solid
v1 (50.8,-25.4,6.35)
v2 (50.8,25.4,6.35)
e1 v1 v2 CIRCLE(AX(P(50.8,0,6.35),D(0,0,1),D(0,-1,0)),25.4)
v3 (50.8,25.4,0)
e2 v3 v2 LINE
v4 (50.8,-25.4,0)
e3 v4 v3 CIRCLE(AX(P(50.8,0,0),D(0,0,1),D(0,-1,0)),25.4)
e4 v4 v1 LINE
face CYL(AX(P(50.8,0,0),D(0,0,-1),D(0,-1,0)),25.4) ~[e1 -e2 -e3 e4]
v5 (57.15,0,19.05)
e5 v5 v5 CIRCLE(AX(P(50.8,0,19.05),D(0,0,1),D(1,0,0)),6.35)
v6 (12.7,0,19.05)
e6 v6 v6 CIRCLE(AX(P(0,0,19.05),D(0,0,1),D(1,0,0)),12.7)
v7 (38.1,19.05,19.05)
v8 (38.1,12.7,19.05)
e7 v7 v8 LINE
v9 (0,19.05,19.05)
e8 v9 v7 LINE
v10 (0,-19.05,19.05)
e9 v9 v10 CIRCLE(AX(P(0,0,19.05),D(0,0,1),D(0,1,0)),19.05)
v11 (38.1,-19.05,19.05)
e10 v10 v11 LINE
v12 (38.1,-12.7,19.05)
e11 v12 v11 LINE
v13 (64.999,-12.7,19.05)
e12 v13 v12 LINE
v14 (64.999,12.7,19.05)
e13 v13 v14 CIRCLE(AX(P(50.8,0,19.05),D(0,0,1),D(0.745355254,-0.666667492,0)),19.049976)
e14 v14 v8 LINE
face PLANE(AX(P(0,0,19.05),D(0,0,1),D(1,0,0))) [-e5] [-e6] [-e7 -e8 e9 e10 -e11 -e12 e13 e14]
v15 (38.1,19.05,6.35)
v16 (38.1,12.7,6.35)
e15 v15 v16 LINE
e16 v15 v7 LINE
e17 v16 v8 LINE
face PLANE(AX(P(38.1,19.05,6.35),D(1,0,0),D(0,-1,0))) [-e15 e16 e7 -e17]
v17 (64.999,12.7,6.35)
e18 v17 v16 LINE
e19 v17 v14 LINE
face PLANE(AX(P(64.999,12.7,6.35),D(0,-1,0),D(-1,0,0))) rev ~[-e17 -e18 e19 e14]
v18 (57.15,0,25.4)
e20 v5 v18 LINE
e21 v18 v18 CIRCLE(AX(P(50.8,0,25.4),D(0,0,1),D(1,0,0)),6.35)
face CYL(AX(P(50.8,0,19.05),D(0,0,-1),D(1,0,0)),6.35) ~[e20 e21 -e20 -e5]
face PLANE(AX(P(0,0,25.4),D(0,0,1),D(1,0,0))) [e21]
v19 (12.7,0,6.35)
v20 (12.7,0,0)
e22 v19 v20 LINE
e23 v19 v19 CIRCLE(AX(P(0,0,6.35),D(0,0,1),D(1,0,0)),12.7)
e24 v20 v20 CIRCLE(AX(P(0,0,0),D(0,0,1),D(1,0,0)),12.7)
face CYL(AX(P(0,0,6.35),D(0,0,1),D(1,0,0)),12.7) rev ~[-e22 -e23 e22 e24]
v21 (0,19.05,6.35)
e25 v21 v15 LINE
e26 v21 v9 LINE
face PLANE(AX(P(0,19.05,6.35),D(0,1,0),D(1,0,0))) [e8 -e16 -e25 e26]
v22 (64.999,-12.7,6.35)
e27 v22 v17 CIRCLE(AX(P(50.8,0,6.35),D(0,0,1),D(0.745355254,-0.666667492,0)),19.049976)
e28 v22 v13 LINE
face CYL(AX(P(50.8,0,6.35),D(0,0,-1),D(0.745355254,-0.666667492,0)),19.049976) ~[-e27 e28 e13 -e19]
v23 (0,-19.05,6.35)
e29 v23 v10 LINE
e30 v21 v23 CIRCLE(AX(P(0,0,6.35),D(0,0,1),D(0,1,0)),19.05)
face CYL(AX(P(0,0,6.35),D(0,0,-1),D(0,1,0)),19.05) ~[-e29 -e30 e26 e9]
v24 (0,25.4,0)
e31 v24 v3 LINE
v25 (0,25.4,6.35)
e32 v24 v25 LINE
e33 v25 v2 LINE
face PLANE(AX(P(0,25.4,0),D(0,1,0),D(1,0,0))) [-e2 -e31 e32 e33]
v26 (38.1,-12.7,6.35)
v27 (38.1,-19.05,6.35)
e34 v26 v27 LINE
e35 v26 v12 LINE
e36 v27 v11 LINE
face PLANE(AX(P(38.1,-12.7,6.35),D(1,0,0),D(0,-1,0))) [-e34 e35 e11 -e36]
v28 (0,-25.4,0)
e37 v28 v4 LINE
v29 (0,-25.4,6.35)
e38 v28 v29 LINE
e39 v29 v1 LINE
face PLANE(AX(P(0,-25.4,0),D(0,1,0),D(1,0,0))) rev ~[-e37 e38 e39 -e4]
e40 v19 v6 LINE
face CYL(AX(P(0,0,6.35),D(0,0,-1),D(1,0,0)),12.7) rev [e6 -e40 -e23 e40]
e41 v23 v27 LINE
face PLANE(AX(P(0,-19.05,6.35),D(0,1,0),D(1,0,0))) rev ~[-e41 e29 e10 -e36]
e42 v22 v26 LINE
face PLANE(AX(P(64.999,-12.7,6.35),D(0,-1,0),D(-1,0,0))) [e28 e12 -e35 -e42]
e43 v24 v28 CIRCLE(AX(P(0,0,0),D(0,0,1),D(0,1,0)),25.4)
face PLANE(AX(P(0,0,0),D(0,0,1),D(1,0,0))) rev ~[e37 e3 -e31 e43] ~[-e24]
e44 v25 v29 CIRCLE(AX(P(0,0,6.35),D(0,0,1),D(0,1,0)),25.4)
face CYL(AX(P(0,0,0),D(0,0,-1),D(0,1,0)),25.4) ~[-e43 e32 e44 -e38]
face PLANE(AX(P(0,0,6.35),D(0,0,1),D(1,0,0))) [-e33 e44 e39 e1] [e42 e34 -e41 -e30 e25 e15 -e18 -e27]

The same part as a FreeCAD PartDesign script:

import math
import FreeCAD as App
import Part
import Sketcher
from FreeCAD import Vector
Q = App.Units.Quantity

doc = App.newDocument("Part")
body = doc.addObject("PartDesign::Body", "Body")

# Sketch on XY plane
sketch1 = body.newObject("Sketcher::SketchObject", "Sketch")
sketch1.AttachmentSupport = (doc.getObject("XY_Plane"), [""])
sketch1.MapMode = "FlatFace"
sketch1.addGeometry(Part.LineSegment(Vector(51, 25, 0), Vector(0, 25, 0)), False)
sketch1.addGeometry(Part.ArcOfCircle(Part.Circle(Vector(0, 0, 0), Vector(0, 0, 1), 25), math.radians(90), math.radians(270)), False)
sketch1.addGeometry(Part.LineSegment(Vector(0, -25, 0), Vector(51, -25, 0)), False)
sketch1.addGeometry(Part.ArcOfCircle(Part.Circle(Vector(51, 0, 0), Vector(0, 0, 1), 25), math.radians(-90), math.radians(90)), False)
sketch1.addConstraint(Sketcher.Constraint("Tangent", 0, 2, 1, 1))
sketch1.addConstraint(Sketcher.Constraint("Tangent", 1, 2, 2, 1))
sketch1.addConstraint(Sketcher.Constraint("Tangent", 2, 2, 3, 1))
sketch1.addConstraint(Sketcher.Constraint("Tangent", 3, 2, 0, 1))
sketch1.addConstraint(Sketcher.Constraint("Horizontal", 0))
sketch1.addConstraint(Sketcher.Constraint("Horizontal", 2))
sketch1.addConstraint(Sketcher.Constraint("Coincident", 1, 3, -1, 1))
sketch1.addConstraint(Sketcher.Constraint("Radius", 1, Q("1 in")))
sketch1.addConstraint(Sketcher.Constraint("DistanceX", 0, 2, 0, 1, Q("2 in")))
pad1 = body.newObject("PartDesign::Pad", "Pad")
pad1.Profile = sketch1
pad1.Length = Q("0.25 in")

# Sketch on XY plane
sketch2 = body.newObject("Sketcher::SketchObject", "Sketch001")
sketch2.AttachmentSupport = (doc.getObject("XY_Plane"), [""])
sketch2.MapMode = "FlatFace"
sketch2.AttachmentOffset = App.Placement(Vector(0, 0, 0.25 * 25.4), App.Rotation())
sketch2.addGeometry(Part.LineSegment(Vector(38, 19, 0), Vector(0, 19, 0)), False)
sketch2.addGeometry(Part.ArcOfCircle(Part.Circle(Vector(0, 0, 0), Vector(0, 0, 1), 19), math.radians(90), math.radians(270)), False)
sketch2.addGeometry(Part.LineSegment(Vector(0, -19, 0), Vector(38, -19, 0)), False)
sketch2.addGeometry(Part.LineSegment(Vector(38, -19, 0), Vector(38, -13, 0)), False)
sketch2.addGeometry(Part.LineSegment(Vector(38, -13, 0), Vector(65, -13, 0)), False)
sketch2.addGeometry(Part.ArcOfCircle(Part.Circle(Vector(51, 0, 0), Vector(0, 0, 1), 19), math.radians(-42), math.radians(42)), False)
sketch2.addGeometry(Part.LineSegment(Vector(65, 13, 0), Vector(38, 13, 0)), False)
sketch2.addGeometry(Part.LineSegment(Vector(38, 13, 0), Vector(38, 19, 0)), False)
sketch2.addGeometry(Part.Circle(Vector(0, 0, 0), Vector(0, 0, 1), 13), False)
sketch2.addConstraint(Sketcher.Constraint("Tangent", 0, 2, 1, 1))
sketch2.addConstraint(Sketcher.Constraint("Tangent", 1, 2, 2, 1))
sketch2.addConstraint(Sketcher.Constraint("Coincident", 2, 2, 3, 1))
sketch2.addConstraint(Sketcher.Constraint("Coincident", 3, 2, 4, 1))
sketch2.addConstraint(Sketcher.Constraint("Coincident", 4, 2, 5, 1))
sketch2.addConstraint(Sketcher.Constraint("Coincident", 5, 2, 6, 1))
sketch2.addConstraint(Sketcher.Constraint("Coincident", 6, 2, 7, 1))
sketch2.addConstraint(Sketcher.Constraint("Coincident", 7, 2, 0, 1))
sketch2.addConstraint(Sketcher.Constraint("Horizontal", 0))
sketch2.addConstraint(Sketcher.Constraint("Horizontal", 2))
sketch2.addConstraint(Sketcher.Constraint("Vertical", 3))
sketch2.addConstraint(Sketcher.Constraint("Horizontal", 4))
sketch2.addConstraint(Sketcher.Constraint("Horizontal", 6))
sketch2.addConstraint(Sketcher.Constraint("Vertical", 7))
sketch2.addConstraint(Sketcher.Constraint("Coincident", 1, 3, -1, 1))
sketch2.addConstraint(Sketcher.Constraint("Coincident", 8, 3, -1, 1))
sketch2.addConstraint(Sketcher.Constraint("Equal", 1, 5))
sketch2.addConstraint(Sketcher.Constraint("Symmetric", 4, 2, 5, 2, -1))
sketch2.addConstraint(Sketcher.Constraint("Vertical", 3, 2, 6, 2))
sketch2.addConstraint(Sketcher.Constraint("Diameter", 8, Q("1 in")))
sketch2.addConstraint(Sketcher.Constraint("Radius", 1, Q("0.75 in")))
sketch2.addConstraint(Sketcher.Constraint("DistanceX", 0, 2, 0, 1, Q("1.5 in")))
sketch2.addConstraint(Sketcher.Constraint("DistanceY", 4, 2, 5, 2, Q("1 in")))
sketch2.addConstraint(Sketcher.Constraint("DistanceX", -1, 1, 5, 3, Q("2 in")))
pad2 = body.newObject("PartDesign::Pad", "Pad001")
pad2.Profile = sketch2
pad2.Length = Q("0.5 in")

# Sketch on XY plane
sketch3 = body.newObject("Sketcher::SketchObject", "Sketch002")
sketch3.AttachmentSupport = (doc.getObject("XY_Plane"), [""])
sketch3.MapMode = "FlatFace"
sketch3.AttachmentOffset = App.Placement(Vector(0, 0, 0.25 * 25.4), App.Rotation())
sketch3.addGeometry(Part.Circle(Vector(0, 0, 0), Vector(0, 0, 1), 13), False)
sketch3.addConstraint(Sketcher.Constraint("Coincident", 0, 3, -1, 1))
sketch3.addConstraint(Sketcher.Constraint("Diameter", 0, Q("1 in")))
pocket1 = body.newObject("PartDesign::Pocket", "Pocket")
pocket1.Profile = sketch3
pocket1.Type = "ThroughAll"

# Sketch on XY plane
sketch4 = body.newObject("Sketcher::SketchObject", "Sketch003")
sketch4.AttachmentSupport = (doc.getObject("XY_Plane"), [""])
sketch4.MapMode = "FlatFace"
sketch4.AttachmentOffset = App.Placement(Vector(0, 0, 0.75 * 25.4), App.Rotation())
sketch4.addGeometry(Part.Circle(Vector(51, 0, 0), Vector(0, 0, 1), 6), False)
sketch4.addConstraint(Sketcher.Constraint("PointOnObject", 0, 3, -1))
sketch4.addConstraint(Sketcher.Constraint("Diameter", 0, Q("0.5 in")))
sketch4.addConstraint(Sketcher.Constraint("DistanceX", -1, 1, 0, 3, Q("2 in")))
pad3 = body.newObject("PartDesign::Pad", "Pad002")
pad3.Profile = sketch4
pad3.Length = Q("0.25 in")

doc.recompute()
